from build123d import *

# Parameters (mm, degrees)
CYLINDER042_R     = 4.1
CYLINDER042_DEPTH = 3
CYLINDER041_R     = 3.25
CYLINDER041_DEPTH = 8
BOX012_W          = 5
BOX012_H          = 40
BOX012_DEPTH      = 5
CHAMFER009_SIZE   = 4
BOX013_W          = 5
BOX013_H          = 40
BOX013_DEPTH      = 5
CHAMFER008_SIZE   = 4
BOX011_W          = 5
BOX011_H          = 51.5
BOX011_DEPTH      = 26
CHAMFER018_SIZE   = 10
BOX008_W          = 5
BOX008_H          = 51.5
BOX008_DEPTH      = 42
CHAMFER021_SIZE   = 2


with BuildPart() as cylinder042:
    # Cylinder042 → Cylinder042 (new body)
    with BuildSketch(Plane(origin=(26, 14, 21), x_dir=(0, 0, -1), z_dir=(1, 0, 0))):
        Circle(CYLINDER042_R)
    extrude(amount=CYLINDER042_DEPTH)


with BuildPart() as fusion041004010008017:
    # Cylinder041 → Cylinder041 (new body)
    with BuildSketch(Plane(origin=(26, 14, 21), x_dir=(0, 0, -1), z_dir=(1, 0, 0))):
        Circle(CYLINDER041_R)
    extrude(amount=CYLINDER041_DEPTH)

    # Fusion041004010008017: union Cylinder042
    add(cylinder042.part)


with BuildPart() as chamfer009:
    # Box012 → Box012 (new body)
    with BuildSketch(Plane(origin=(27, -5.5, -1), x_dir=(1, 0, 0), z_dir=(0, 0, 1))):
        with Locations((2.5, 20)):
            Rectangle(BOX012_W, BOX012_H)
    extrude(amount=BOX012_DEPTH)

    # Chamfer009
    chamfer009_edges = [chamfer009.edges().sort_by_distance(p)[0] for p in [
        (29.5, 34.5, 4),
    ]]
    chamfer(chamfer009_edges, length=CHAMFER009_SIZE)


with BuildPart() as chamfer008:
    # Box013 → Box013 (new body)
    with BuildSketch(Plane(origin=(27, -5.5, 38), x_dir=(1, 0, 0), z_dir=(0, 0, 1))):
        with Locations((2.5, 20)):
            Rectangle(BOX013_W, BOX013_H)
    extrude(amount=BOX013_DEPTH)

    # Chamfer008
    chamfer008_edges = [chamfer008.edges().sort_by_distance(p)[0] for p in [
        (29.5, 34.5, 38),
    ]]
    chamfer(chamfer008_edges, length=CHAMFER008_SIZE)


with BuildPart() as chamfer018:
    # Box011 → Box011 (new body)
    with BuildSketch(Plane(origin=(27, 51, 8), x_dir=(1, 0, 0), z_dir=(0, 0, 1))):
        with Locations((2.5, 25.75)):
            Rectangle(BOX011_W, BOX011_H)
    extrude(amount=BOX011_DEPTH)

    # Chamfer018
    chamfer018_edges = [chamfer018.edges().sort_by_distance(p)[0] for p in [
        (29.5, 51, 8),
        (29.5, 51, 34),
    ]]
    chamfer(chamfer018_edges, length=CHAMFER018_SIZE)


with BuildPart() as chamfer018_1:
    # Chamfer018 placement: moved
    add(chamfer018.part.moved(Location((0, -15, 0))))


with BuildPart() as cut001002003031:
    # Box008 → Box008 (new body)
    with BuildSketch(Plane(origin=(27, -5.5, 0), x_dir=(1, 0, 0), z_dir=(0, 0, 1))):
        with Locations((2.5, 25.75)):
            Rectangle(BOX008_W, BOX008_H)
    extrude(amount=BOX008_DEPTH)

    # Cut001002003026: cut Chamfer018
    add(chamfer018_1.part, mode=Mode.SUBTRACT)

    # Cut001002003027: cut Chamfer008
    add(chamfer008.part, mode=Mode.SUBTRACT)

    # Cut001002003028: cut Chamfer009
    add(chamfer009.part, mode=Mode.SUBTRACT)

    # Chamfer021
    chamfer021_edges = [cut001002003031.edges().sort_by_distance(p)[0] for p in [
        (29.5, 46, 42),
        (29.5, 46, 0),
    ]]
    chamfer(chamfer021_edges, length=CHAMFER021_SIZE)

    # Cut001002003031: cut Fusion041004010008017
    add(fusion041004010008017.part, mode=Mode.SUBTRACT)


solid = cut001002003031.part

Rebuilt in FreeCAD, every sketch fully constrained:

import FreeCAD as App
import Part
import Sketcher

V = App.Vector


def edges_at(feature, points):
    """Names of the edges that pass closest to the given points."""
    edges = feature.Shape.Edges
    near = lambda p: min(range(len(edges)), key=lambda i: edges[i].distToShape(Part.Vertex(*p))[0])
    return sorted({f"Edge{near(p) + 1}" for p in points})

doc = App.newDocument("Part")
body = doc.addObject("PartDesign::Body", "Body")

# Sketch on YZ plane
sketch1 = body.newObject("Sketcher::SketchObject", "Sketch")
sketch1.AttachmentSupport = (doc.getObject("YZ_Plane"), [""])
sketch1.MapMode = "FlatFace"
sketch1.AttachmentOffset = App.Placement(V(0, 0, 26), App.Rotation())
sketch1.addGeometry(Part.Circle(V(14, 21, 0), V(0, 0, 1), 4.1), False)
sketch1.addConstraint(Sketcher.Constraint("Diameter", 0, 8.2))
sketch1.addConstraint(Sketcher.Constraint("DistanceX", -1, 1, 0, 3, 14.0))
sketch1.addConstraint(Sketcher.Constraint("DistanceY", -1, 1, 0, 3, 21.0))
pad1 = body.newObject("PartDesign::Pad", "Pad")
pad1.Profile = sketch1
pad1.Length = 3
body2 = doc.addObject("PartDesign::Body", "Body001")

# Sketch on YZ plane
sketch2 = body2.newObject("Sketcher::SketchObject", "Sketch001")
sketch2.AttachmentSupport = (doc.getObject("YZ_Plane001"), [""])
sketch2.MapMode = "FlatFace"
sketch2.AttachmentOffset = App.Placement(V(0, 0, 26), App.Rotation())
sketch2.addGeometry(Part.Circle(V(14, 21, 0), V(0, 0, 1), 3.2), False)
sketch2.addConstraint(Sketcher.Constraint("Diameter", 0, 6.5))
sketch2.addConstraint(Sketcher.Constraint("DistanceX", -1, 1, 0, 3, 14.0))
sketch2.addConstraint(Sketcher.Constraint("DistanceY", -1, 1, 0, 3, 21.0))
pad2 = body2.newObject("PartDesign::Pad", "Pad001")
pad2.Profile = sketch2
pad2.Length = 8
doc.recompute()

boolean = body2.newObject("PartDesign::Boolean", "Boolean")
boolean.Type = "Fuse"
boolean.addObjects([body])
body3 = doc.addObject("PartDesign::Body", "Body002")

# Sketch on XY plane
sketch3 = body3.newObject("Sketcher::SketchObject", "Sketch002")
sketch3.AttachmentSupport = (doc.getObject("XY_Plane002"), [""])
sketch3.MapMode = "FlatFace"
sketch3.AttachmentOffset = App.Placement(V(0, 0, -1), App.Rotation())
sketch3.addGeometry(Part.LineSegment(V(27, 34, 0), V(27, -6, 0)), False)
sketch3.addGeometry(Part.LineSegment(V(27, -6, 0), V(32, -6, 0)), False)
sketch3.addGeometry(Part.LineSegment(V(32, -6, 0), V(32, 34, 0)), False)
sketch3.addGeometry(Part.LineSegment(V(32, 34, 0), V(27, 34, 0)), False)
sketch3.addConstraint(Sketcher.Constraint("Coincident", 0, 2, 1, 1))
sketch3.addConstraint(Sketcher.Constraint("Coincident", 1, 2, 2, 1))
sketch3.addConstraint(Sketcher.Constraint("Coincident", 2, 2, 3, 1))
sketch3.addConstraint(Sketcher.Constraint("Coincident", 3, 2, 0, 1))
sketch3.addConstraint(Sketcher.Constraint("Vertical", 0))
sketch3.addConstraint(Sketcher.Constraint("Horizontal", 1))
sketch3.addConstraint(Sketcher.Constraint("Vertical", 2))
sketch3.addConstraint(Sketcher.Constraint("Horizontal", 3))
sketch3.addConstraint(Sketcher.Constraint("DistanceX", 1, 1, 1, 2, 5.0))
sketch3.addConstraint(Sketcher.Constraint("DistanceY", 0, 2, 0, 1, 40.0))
sketch3.addConstraint(Sketcher.Constraint("DistanceX", -1, 1, 0, 2, 27.0))
sketch3.addConstraint(Sketcher.Constraint("DistanceY", 0, 2, -1, 1, 5.5))
pad3 = body3.newObject("PartDesign::Pad", "Pad002")
pad3.Profile = sketch3
pad3.Length = 5
doc.recompute()

chamfer = body3.newObject("PartDesign::Chamfer", "Chamfer")
chamfer.Base = (pad3, edges_at(pad3, [(29.5, 34.5, 4)]))
chamfer.Size = 4
body4 = doc.addObject("PartDesign::Body", "Body003")

# Sketch on XY plane
sketch4 = body4.newObject("Sketcher::SketchObject", "Sketch003")
sketch4.AttachmentSupport = (doc.getObject("XY_Plane003"), [""])
sketch4.MapMode = "FlatFace"
sketch4.AttachmentOffset = App.Placement(V(0, 0, 38), App.Rotation())
sketch4.addGeometry(Part.LineSegment(V(27, 34, 0), V(27, -6, 0)), False)
sketch4.addGeometry(Part.LineSegment(V(27, -6, 0), V(32, -6, 0)), False)
sketch4.addGeometry(Part.LineSegment(V(32, -6, 0), V(32, 34, 0)), False)
sketch4.addGeometry(Part.LineSegment(V(32, 34, 0), V(27, 34, 0)), False)
sketch4.addConstraint(Sketcher.Constraint("Coincident", 0, 2, 1, 1))
sketch4.addConstraint(Sketcher.Constraint("Coincident", 1, 2, 2, 1))
sketch4.addConstraint(Sketcher.Constraint("Coincident", 2, 2, 3, 1))
sketch4.addConstraint(Sketcher.Constraint("Coincident", 3, 2, 0, 1))
sketch4.addConstraint(Sketcher.Constraint("Vertical", 0))
sketch4.addConstraint(Sketcher.Constraint("Horizontal", 1))
sketch4.addConstraint(Sketcher.Constraint("Vertical", 2))
sketch4.addConstraint(Sketcher.Constraint("Horizontal", 3))
sketch4.addConstraint(Sketcher.Constraint("DistanceX", 1, 1, 1, 2, 5.0))
sketch4.addConstraint(Sketcher.Constraint("DistanceY", 0, 2, 0, 1, 40.0))
sketch4.addConstraint(Sketcher.Constraint("DistanceX", -1, 1, 0, 2, 27.0))
sketch4.addConstraint(Sketcher.Constraint("DistanceY", 0, 2, -1, 1, 5.5))
pad4 = body4.newObject("PartDesign::Pad", "Pad003")
pad4.Profile = sketch4
pad4.Length = 5
doc.recompute()

chamfer2 = body4.newObject("PartDesign::Chamfer", "Chamfer001")
chamfer2.Base = (pad4, edges_at(pad4, [(29.5, 34.5, 38)]))
chamfer2.Size = 4
body5 = doc.addObject("PartDesign::Body", "Body004")

# Sketch on XY plane
sketch5 = body5.newObject("Sketcher::SketchObject", "Sketch004")
sketch5.AttachmentSupport = (doc.getObject("XY_Plane004"), [""])
sketch5.MapMode = "FlatFace"
sketch5.AttachmentOffset = App.Placement(V(0, 0, 8), App.Rotation())
sketch5.addGeometry(Part.LineSegment(V(27, 102, 0), V(27, 51, 0)), False)
sketch5.addGeometry(Part.LineSegment(V(27, 51, 0), V(32, 51, 0)), False)
sketch5.addGeometry(Part.LineSegment(V(32, 51, 0), V(32, 102, 0)), False)
sketch5.addGeometry(Part.LineSegment(V(32, 102, 0), V(27, 102, 0)), False)
sketch5.addConstraint(Sketcher.Constraint("Coincident", 0, 2, 1, 1))
sketch5.addConstraint(Sketcher.Constraint("Coincident", 1, 2, 2, 1))
sketch5.addConstraint(Sketcher.Constraint("Coincident", 2, 2, 3, 1))
sketch5.addConstraint(Sketcher.Constraint("Coincident", 3, 2, 0, 1))
sketch5.addConstraint(Sketcher.Constraint("Vertical", 0))
sketch5.addConstraint(Sketcher.Constraint("Horizontal", 1))
sketch5.addConstraint(Sketcher.Constraint("Vertical", 2))
sketch5.addConstraint(Sketcher.Constraint("Horizontal", 3))
sketch5.addConstraint(Sketcher.Constraint("DistanceX", 1, 1, 1, 2, 5.0))
sketch5.addConstraint(Sketcher.Constraint("DistanceY", 0, 2, 0, 1, 51.5))
sketch5.addConstraint(Sketcher.Constraint("DistanceX", -1, 1, 0, 2, 27.0))
sketch5.addConstraint(Sketcher.Constraint("DistanceY", -1, 1, 0, 2, 51.0))
pad5 = body5.newObject("PartDesign::Pad", "Pad004")
pad5.Profile = sketch5
pad5.Length = 26
doc.recompute()

chamfer3 = body5.newObject("PartDesign::Chamfer", "Chamfer002")
chamfer3.Base = (pad5, edges_at(pad5, [(29.5, 51, 8), (29.5, 51, 34)]))
chamfer3.Size = 10
body6 = doc.addObject("PartDesign::Body", "Body005")
doc.recompute()

body5.Placement = App.Placement(V(0, -15, 0), App.Rotation(V(0, 0, 1), 0))
boolean2 = body6.newObject("PartDesign::Boolean", "Boolean001")
boolean2.Type = "Fuse"
boolean2.addObjects([body5])
body7 = doc.addObject("PartDesign::Body", "Body006")

# Sketch on XY plane
sketch6 = body7.newObject("Sketcher::SketchObject", "Sketch005")
sketch6.AttachmentSupport = (doc.getObject("XY_Plane006"), [""])
sketch6.MapMode = "FlatFace"
sketch6.addGeometry(Part.LineSegment(V(27, 46, 0), V(27, -6, 0)), False)
sketch6.addGeometry(Part.LineSegment(V(27, -6, 0), V(32, -6, 0)), False)
sketch6.addGeometry(Part.LineSegment(V(32, -6, 0), V(32, 46, 0)), False)
sketch6.addGeometry(Part.LineSegment(V(32, 46, 0), V(27, 46, 0)), False)
sketch6.addConstraint(Sketcher.Constraint("Coincident", 0, 2, 1, 1))
sketch6.addConstraint(Sketcher.Constraint("Coincident", 1, 2, 2, 1))
sketch6.addConstraint(Sketcher.Constraint("Coincident", 2, 2, 3, 1))
sketch6.addConstraint(Sketcher.Constraint("Coincident", 3, 2, 0, 1))
sketch6.addConstraint(Sketcher.Constraint("Vertical", 0))
sketch6.addConstraint(Sketcher.Constraint("Horizontal", 1))
sketch6.addConstraint(Sketcher.Constraint("Vertical", 2))
sketch6.addConstraint(Sketcher.Constraint("Horizontal", 3))
sketch6.addConstraint(Sketcher.Constraint("DistanceX", 1, 1, 1, 2, 5.0))
sketch6.addConstraint(Sketcher.Constraint("DistanceY", 0, 2, 0, 1, 51.5))
sketch6.addConstraint(Sketcher.Constraint("DistanceX", -1, 1, 0, 2, 27.0))
sketch6.addConstraint(Sketcher.Constraint("DistanceY", -1, 1, 2, 2, 46.0))
pad6 = body7.newObject("PartDesign::Pad", "Pad005")
pad6.Profile = sketch6
pad6.Length = 42
doc.recompute()

boolean3 = body7.newObject("PartDesign::Boolean", "Boolean002")
boolean3.Type = "Cut"
boolean3.addObjects([body6])
doc.recompute()

boolean4 = body7.newObject("PartDesign::Boolean", "Boolean003")
boolean4.Type = "Cut"
boolean4.addObjects([body4])
doc.recompute()

boolean5 = body7.newObject("PartDesign::Boolean", "Boolean004")
boolean5.Type = "Cut"
boolean5.addObjects([body3])
doc.recompute()

chamfer4 = body7.newObject("PartDesign::Chamfer", "Chamfer003")
chamfer4.Base = (boolean5, edges_at(boolean5, [(29.5, 46, 42), (29.5, 46, 0)]))
chamfer4.Size = 2
doc.recompute()

boolean6 = body7.newObject("PartDesign::Boolean", "Boolean005")
boolean6.Type = "Cut"
boolean6.addObjects([body2])

doc.recompute()
